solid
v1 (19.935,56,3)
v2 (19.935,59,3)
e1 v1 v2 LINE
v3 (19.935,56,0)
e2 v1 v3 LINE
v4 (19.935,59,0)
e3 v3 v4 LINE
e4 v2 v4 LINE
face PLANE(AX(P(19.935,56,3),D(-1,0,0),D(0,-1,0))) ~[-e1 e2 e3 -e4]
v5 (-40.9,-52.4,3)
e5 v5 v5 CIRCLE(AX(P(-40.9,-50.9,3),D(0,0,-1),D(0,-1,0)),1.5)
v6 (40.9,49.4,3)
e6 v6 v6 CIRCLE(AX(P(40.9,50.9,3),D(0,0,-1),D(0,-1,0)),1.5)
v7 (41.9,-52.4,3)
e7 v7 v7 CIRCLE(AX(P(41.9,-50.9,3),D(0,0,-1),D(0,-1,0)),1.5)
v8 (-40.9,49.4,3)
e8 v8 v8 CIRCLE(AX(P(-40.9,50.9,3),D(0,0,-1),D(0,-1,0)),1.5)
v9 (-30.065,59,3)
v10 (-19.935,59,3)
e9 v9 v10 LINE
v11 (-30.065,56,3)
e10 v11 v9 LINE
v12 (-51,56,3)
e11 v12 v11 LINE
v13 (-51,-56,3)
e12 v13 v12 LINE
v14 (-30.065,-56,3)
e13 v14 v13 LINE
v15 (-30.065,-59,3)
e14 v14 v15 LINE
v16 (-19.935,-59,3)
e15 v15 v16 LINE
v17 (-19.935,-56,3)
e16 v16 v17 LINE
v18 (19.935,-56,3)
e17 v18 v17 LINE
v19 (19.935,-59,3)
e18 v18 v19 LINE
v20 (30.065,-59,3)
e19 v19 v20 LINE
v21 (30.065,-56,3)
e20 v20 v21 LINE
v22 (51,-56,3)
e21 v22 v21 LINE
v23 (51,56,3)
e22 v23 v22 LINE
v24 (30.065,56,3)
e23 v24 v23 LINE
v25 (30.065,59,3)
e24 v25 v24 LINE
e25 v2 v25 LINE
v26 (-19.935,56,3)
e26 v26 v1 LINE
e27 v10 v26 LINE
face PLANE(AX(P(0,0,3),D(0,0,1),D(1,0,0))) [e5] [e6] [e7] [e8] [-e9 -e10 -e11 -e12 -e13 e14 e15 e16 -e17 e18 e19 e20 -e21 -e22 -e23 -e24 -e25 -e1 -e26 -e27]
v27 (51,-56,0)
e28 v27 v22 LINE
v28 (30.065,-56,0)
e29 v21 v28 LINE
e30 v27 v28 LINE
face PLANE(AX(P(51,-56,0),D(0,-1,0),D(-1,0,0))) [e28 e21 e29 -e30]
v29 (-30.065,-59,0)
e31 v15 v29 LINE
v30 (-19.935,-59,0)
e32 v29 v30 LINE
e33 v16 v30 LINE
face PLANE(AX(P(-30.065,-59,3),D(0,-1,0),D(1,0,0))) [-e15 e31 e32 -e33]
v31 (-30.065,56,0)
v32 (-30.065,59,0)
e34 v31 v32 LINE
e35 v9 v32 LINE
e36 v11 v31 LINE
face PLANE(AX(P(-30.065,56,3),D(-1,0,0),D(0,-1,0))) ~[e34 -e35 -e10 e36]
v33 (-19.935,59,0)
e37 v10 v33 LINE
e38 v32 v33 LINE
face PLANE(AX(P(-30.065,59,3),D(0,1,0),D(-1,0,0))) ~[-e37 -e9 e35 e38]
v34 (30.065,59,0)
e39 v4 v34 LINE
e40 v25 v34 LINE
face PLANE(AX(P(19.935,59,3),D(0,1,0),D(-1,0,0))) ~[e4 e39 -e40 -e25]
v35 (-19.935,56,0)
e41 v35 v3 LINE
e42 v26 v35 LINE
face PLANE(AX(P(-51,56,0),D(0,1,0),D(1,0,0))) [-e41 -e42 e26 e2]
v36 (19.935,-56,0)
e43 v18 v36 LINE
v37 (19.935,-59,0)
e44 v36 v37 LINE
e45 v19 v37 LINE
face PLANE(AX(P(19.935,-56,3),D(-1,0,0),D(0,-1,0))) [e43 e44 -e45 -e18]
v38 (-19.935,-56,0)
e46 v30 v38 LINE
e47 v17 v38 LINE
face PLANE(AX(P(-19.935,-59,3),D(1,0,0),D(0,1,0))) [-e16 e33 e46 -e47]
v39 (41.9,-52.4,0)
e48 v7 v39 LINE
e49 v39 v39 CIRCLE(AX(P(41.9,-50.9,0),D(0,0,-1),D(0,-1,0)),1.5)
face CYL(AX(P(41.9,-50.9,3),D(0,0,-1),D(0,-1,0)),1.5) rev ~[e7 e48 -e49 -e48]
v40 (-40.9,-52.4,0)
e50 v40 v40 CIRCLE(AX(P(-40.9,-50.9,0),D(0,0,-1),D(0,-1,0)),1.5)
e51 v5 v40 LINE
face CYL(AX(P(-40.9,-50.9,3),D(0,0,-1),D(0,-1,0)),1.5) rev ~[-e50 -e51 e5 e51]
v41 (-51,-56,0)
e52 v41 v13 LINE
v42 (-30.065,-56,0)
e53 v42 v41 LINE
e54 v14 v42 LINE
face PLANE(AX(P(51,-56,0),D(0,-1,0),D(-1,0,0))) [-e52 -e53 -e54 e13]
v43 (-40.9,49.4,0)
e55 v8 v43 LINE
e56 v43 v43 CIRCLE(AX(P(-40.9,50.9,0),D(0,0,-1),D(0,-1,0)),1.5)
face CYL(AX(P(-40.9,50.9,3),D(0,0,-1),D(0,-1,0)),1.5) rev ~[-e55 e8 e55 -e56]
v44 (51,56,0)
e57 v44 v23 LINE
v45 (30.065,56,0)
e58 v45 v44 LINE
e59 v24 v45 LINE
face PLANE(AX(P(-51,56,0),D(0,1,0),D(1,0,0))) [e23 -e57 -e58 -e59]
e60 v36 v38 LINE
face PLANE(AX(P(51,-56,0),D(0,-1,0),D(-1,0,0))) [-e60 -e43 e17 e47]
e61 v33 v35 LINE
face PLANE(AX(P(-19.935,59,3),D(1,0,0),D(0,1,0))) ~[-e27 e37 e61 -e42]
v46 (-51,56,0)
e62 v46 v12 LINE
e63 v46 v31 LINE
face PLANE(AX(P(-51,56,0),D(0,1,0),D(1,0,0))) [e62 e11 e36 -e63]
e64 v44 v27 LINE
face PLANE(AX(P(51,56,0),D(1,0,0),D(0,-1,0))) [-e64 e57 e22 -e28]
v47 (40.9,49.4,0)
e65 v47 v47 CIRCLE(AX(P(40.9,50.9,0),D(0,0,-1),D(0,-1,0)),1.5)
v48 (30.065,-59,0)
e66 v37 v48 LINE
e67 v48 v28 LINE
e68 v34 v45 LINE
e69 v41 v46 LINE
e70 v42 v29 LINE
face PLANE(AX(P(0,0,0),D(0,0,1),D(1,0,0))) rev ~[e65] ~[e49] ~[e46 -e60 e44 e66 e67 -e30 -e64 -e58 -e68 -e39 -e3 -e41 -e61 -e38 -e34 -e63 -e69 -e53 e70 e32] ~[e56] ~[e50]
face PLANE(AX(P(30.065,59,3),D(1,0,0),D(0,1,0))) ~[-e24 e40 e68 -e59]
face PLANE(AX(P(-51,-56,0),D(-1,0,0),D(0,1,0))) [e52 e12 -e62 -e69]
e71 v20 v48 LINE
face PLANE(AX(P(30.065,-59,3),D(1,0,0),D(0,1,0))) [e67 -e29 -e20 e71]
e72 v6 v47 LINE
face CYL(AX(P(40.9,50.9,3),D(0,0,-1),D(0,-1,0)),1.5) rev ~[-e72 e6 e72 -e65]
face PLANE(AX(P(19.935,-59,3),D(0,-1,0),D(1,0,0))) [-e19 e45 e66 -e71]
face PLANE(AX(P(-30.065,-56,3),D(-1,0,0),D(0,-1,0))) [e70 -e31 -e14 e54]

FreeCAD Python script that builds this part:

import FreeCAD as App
import Part
import Sketcher

V = App.Vector
Q = App.Units.Quantity


def add_polygon(sketch, points):
    """Adds a closed chain of lines whose ends are joined by coincident constraints."""
    first, n = sketch.GeometryCount, len(points)
    for a, b in zip(points, points[1:] + points[:1]):
        sketch.addGeometry(Part.LineSegment(App.Vector(*a, 0), App.Vector(*b, 0)), False)
    for i in range(n):
        sketch.addConstraint(Sketcher.Constraint("Coincident", first + i, 2, first + (i + 1) % n, 1))

doc = App.newDocument("Part")
params = doc.addObject("Spreadsheet::Sheet", "Params")
for row, (alias, value) in enumerate([
    ("sketch1_width", "102 mm"),
    ("sketch1_height", "112 mm"),
    ("pad1_length", "3 mm"),
    ("sketch2_height", "3 mm"),
    ("sketch2_width", "10.13 mm"),
    ("pad2_length", "3 mm"),
    ("sketch3_diameter", "3 mm"),
    ("hole_diameter", "3 mm"),
], start=1):
    params.set(f"A{row}", alias)
    params.set(f"B{row}", "=" + value)
    params.setAlias(f"B{row}", alias)

body = doc.addObject("PartDesign::Body", "Body")

# Sketch on XY plane
sketch1 = body.newObject("Sketcher::SketchObject", "Sketch")
sketch1.AttachmentSupport = (doc.getObject("XY_Plane"), [""])
sketch1.MapMode = "FlatFace"
add_polygon(sketch1, [(51, 56), (-51, 56), (-51, -56), (51, -56)])  # lines 0-3
sketch1.addConstraint(Sketcher.Constraint("Horizontal", 0))
sketch1.addConstraint(Sketcher.Constraint("Vertical", 1))
sketch1.addConstraint(Sketcher.Constraint("Horizontal", 2))
sketch1.addConstraint(Sketcher.Constraint("Vertical", 3))
sketch1.addConstraint(Sketcher.Constraint("Symmetric", 0, 2, 2, 2, -1, 1))
sketch1.addConstraint(Sketcher.Constraint("DistanceX", 0, 2, 0, 1, Q("102 mm")))
sketch1.addConstraint(Sketcher.Constraint("DistanceY", 1, 2, 1, 1, Q("112 mm")))
sketch1.setExpression("Constraints[9]", "Params.sketch1_width")
sketch1.setExpression("Constraints[10]", "Params.sketch1_height")
pad1 = body.newObject("PartDesign::Pad", "Pad")
pad1.Profile = sketch1
pad1.setExpression("Length", "Params.pad1_length")

# Sketch on XY plane
sketch2 = body.newObject("Sketcher::SketchObject", "Sketch001")
sketch2.AttachmentSupport = (doc.getObject("XY_Plane"), [""])
sketch2.MapMode = "FlatFace"
sketch2.AttachmentOffset = App.Placement(V(0, 0, 3), App.Rotation())
add_polygon(sketch2, [(30.065, -56), (19.935, -56), (19.935, -59), (30.065, -59)])  # lines 0-3
add_polygon(sketch2, [(-19.935, -56), (-30.065, -56), (-30.065, -59), (-19.935, -59)])  # lines 4-7
sketch2.addConstraint(Sketcher.Constraint("Horizontal", 0))
sketch2.addConstraint(Sketcher.Constraint("Vertical", 1))
sketch2.addConstraint(Sketcher.Constraint("Horizontal", 2))
sketch2.addConstraint(Sketcher.Constraint("Vertical", 3))
sketch2.addConstraint(Sketcher.Constraint("Horizontal", 4))
sketch2.addConstraint(Sketcher.Constraint("Vertical", 5))
sketch2.addConstraint(Sketcher.Constraint("Horizontal", 6))
sketch2.addConstraint(Sketcher.Constraint("Vertical", 7))
sketch2.addConstraint(Sketcher.Constraint("Symmetric", 3, 2, 4, 2, -2))
sketch2.addConstraint(Sketcher.Constraint("Symmetric", 1, 2, 6, 2, -2))
sketch2.addConstraint(Sketcher.Constraint("DistanceY", 1, 2, 1, 1, Q("3 mm")))
sketch2.addConstraint(Sketcher.Constraint("DistanceX", 0, 2, 0, 1, Q("10.13 mm")))
sketch2.addConstraint(Sketcher.Constraint("DistanceY", 0, 2, -1, 1, Q("56 mm")))
sketch2.addConstraint(Sketcher.Constraint("DistanceX", 4, 2, 0, 2, Q("50 mm")))
sketch2.setExpression("Constraints[18]", "Params.sketch2_height")
sketch2.setExpression("Constraints[19]", "Params.sketch2_width")
pad2 = body.newObject("PartDesign::Pad", "Pad001")
pad2.Profile = sketch2
pad2.setExpression("Length", "Params.pad2_length")
pad2.Reversed = True
doc.recompute()

mirrored = body.newObject("PartDesign::Mirrored", "Mirrored")
mirrored.Originals = [pad2]
mirrored.MirrorPlane = (doc.getObject("XZ_Plane"), [""])
body.Tip = mirrored

# Sketch on XY plane
sketch3 = body.newObject("Sketcher::SketchObject", "Sketch002")
sketch3.AttachmentSupport = (doc.getObject("XY_Plane"), [""])
sketch3.MapMode = "FlatFace"
sketch3.AttachmentOffset = App.Placement(V(0, 0, 3), App.Rotation())
sketch3.addGeometry(Part.Circle(V(-40.9, -50.9, 0), V(0, 0, 1), 1.5), False)
sketch3.addGeometry(Part.Circle(V(41.9, -50.9, 0), V(0, 0, 1), 1.5), False)
sketch3.addGeometry(Part.Circle(V(40.9, 50.9, 0), V(0, 0, 1), 1.5), False)
sketch3.addGeometry(Part.Circle(V(-40.9, 50.9, 0), V(0, 0, 1), 1.5), False)
sketch3.addConstraint(Sketcher.Constraint("Equal", 0, 1))
sketch3.addConstraint(Sketcher.Constraint("Equal", 1, 2))
sketch3.addConstraint(Sketcher.Constraint("Equal", 2, 3))
sketch3.addConstraint(Sketcher.Constraint("Symmetric", 0, 3, 2, 3, -1, 1))
sketch3.addConstraint(Sketcher.Constraint("Symmetric", 2, 3, 3, 3, -2))
sketch3.addConstraint(Sketcher.Constraint("Horizontal", 0, 3, 1, 3))
sketch3.addConstraint(Sketcher.Constraint("Diameter", 0, Q("3 mm")))
sketch3.addConstraint(Sketcher.Constraint("DistanceX", 2, 3, 1, 3, Q("1 mm")))
sketch3.addConstraint(Sketcher.Constraint("DistanceX", 0, 3, -1, 1, Q("40.9 mm")))
sketch3.addConstraint(Sketcher.Constraint("DistanceY", 0, 3, -1, 1, Q("50.9 mm")))
sketch3.setExpression("Constraints[6]", "Params.sketch3_diameter")
doc.recompute()
hole = body.newObject("PartDesign::Hole", "Hole")
hole.Profile = sketch3
hole.ThreadType = "None"
hole.setExpression("Diameter", "Params.hole_diameter")
hole.DepthType = "ThroughAll"

doc.recompute()
